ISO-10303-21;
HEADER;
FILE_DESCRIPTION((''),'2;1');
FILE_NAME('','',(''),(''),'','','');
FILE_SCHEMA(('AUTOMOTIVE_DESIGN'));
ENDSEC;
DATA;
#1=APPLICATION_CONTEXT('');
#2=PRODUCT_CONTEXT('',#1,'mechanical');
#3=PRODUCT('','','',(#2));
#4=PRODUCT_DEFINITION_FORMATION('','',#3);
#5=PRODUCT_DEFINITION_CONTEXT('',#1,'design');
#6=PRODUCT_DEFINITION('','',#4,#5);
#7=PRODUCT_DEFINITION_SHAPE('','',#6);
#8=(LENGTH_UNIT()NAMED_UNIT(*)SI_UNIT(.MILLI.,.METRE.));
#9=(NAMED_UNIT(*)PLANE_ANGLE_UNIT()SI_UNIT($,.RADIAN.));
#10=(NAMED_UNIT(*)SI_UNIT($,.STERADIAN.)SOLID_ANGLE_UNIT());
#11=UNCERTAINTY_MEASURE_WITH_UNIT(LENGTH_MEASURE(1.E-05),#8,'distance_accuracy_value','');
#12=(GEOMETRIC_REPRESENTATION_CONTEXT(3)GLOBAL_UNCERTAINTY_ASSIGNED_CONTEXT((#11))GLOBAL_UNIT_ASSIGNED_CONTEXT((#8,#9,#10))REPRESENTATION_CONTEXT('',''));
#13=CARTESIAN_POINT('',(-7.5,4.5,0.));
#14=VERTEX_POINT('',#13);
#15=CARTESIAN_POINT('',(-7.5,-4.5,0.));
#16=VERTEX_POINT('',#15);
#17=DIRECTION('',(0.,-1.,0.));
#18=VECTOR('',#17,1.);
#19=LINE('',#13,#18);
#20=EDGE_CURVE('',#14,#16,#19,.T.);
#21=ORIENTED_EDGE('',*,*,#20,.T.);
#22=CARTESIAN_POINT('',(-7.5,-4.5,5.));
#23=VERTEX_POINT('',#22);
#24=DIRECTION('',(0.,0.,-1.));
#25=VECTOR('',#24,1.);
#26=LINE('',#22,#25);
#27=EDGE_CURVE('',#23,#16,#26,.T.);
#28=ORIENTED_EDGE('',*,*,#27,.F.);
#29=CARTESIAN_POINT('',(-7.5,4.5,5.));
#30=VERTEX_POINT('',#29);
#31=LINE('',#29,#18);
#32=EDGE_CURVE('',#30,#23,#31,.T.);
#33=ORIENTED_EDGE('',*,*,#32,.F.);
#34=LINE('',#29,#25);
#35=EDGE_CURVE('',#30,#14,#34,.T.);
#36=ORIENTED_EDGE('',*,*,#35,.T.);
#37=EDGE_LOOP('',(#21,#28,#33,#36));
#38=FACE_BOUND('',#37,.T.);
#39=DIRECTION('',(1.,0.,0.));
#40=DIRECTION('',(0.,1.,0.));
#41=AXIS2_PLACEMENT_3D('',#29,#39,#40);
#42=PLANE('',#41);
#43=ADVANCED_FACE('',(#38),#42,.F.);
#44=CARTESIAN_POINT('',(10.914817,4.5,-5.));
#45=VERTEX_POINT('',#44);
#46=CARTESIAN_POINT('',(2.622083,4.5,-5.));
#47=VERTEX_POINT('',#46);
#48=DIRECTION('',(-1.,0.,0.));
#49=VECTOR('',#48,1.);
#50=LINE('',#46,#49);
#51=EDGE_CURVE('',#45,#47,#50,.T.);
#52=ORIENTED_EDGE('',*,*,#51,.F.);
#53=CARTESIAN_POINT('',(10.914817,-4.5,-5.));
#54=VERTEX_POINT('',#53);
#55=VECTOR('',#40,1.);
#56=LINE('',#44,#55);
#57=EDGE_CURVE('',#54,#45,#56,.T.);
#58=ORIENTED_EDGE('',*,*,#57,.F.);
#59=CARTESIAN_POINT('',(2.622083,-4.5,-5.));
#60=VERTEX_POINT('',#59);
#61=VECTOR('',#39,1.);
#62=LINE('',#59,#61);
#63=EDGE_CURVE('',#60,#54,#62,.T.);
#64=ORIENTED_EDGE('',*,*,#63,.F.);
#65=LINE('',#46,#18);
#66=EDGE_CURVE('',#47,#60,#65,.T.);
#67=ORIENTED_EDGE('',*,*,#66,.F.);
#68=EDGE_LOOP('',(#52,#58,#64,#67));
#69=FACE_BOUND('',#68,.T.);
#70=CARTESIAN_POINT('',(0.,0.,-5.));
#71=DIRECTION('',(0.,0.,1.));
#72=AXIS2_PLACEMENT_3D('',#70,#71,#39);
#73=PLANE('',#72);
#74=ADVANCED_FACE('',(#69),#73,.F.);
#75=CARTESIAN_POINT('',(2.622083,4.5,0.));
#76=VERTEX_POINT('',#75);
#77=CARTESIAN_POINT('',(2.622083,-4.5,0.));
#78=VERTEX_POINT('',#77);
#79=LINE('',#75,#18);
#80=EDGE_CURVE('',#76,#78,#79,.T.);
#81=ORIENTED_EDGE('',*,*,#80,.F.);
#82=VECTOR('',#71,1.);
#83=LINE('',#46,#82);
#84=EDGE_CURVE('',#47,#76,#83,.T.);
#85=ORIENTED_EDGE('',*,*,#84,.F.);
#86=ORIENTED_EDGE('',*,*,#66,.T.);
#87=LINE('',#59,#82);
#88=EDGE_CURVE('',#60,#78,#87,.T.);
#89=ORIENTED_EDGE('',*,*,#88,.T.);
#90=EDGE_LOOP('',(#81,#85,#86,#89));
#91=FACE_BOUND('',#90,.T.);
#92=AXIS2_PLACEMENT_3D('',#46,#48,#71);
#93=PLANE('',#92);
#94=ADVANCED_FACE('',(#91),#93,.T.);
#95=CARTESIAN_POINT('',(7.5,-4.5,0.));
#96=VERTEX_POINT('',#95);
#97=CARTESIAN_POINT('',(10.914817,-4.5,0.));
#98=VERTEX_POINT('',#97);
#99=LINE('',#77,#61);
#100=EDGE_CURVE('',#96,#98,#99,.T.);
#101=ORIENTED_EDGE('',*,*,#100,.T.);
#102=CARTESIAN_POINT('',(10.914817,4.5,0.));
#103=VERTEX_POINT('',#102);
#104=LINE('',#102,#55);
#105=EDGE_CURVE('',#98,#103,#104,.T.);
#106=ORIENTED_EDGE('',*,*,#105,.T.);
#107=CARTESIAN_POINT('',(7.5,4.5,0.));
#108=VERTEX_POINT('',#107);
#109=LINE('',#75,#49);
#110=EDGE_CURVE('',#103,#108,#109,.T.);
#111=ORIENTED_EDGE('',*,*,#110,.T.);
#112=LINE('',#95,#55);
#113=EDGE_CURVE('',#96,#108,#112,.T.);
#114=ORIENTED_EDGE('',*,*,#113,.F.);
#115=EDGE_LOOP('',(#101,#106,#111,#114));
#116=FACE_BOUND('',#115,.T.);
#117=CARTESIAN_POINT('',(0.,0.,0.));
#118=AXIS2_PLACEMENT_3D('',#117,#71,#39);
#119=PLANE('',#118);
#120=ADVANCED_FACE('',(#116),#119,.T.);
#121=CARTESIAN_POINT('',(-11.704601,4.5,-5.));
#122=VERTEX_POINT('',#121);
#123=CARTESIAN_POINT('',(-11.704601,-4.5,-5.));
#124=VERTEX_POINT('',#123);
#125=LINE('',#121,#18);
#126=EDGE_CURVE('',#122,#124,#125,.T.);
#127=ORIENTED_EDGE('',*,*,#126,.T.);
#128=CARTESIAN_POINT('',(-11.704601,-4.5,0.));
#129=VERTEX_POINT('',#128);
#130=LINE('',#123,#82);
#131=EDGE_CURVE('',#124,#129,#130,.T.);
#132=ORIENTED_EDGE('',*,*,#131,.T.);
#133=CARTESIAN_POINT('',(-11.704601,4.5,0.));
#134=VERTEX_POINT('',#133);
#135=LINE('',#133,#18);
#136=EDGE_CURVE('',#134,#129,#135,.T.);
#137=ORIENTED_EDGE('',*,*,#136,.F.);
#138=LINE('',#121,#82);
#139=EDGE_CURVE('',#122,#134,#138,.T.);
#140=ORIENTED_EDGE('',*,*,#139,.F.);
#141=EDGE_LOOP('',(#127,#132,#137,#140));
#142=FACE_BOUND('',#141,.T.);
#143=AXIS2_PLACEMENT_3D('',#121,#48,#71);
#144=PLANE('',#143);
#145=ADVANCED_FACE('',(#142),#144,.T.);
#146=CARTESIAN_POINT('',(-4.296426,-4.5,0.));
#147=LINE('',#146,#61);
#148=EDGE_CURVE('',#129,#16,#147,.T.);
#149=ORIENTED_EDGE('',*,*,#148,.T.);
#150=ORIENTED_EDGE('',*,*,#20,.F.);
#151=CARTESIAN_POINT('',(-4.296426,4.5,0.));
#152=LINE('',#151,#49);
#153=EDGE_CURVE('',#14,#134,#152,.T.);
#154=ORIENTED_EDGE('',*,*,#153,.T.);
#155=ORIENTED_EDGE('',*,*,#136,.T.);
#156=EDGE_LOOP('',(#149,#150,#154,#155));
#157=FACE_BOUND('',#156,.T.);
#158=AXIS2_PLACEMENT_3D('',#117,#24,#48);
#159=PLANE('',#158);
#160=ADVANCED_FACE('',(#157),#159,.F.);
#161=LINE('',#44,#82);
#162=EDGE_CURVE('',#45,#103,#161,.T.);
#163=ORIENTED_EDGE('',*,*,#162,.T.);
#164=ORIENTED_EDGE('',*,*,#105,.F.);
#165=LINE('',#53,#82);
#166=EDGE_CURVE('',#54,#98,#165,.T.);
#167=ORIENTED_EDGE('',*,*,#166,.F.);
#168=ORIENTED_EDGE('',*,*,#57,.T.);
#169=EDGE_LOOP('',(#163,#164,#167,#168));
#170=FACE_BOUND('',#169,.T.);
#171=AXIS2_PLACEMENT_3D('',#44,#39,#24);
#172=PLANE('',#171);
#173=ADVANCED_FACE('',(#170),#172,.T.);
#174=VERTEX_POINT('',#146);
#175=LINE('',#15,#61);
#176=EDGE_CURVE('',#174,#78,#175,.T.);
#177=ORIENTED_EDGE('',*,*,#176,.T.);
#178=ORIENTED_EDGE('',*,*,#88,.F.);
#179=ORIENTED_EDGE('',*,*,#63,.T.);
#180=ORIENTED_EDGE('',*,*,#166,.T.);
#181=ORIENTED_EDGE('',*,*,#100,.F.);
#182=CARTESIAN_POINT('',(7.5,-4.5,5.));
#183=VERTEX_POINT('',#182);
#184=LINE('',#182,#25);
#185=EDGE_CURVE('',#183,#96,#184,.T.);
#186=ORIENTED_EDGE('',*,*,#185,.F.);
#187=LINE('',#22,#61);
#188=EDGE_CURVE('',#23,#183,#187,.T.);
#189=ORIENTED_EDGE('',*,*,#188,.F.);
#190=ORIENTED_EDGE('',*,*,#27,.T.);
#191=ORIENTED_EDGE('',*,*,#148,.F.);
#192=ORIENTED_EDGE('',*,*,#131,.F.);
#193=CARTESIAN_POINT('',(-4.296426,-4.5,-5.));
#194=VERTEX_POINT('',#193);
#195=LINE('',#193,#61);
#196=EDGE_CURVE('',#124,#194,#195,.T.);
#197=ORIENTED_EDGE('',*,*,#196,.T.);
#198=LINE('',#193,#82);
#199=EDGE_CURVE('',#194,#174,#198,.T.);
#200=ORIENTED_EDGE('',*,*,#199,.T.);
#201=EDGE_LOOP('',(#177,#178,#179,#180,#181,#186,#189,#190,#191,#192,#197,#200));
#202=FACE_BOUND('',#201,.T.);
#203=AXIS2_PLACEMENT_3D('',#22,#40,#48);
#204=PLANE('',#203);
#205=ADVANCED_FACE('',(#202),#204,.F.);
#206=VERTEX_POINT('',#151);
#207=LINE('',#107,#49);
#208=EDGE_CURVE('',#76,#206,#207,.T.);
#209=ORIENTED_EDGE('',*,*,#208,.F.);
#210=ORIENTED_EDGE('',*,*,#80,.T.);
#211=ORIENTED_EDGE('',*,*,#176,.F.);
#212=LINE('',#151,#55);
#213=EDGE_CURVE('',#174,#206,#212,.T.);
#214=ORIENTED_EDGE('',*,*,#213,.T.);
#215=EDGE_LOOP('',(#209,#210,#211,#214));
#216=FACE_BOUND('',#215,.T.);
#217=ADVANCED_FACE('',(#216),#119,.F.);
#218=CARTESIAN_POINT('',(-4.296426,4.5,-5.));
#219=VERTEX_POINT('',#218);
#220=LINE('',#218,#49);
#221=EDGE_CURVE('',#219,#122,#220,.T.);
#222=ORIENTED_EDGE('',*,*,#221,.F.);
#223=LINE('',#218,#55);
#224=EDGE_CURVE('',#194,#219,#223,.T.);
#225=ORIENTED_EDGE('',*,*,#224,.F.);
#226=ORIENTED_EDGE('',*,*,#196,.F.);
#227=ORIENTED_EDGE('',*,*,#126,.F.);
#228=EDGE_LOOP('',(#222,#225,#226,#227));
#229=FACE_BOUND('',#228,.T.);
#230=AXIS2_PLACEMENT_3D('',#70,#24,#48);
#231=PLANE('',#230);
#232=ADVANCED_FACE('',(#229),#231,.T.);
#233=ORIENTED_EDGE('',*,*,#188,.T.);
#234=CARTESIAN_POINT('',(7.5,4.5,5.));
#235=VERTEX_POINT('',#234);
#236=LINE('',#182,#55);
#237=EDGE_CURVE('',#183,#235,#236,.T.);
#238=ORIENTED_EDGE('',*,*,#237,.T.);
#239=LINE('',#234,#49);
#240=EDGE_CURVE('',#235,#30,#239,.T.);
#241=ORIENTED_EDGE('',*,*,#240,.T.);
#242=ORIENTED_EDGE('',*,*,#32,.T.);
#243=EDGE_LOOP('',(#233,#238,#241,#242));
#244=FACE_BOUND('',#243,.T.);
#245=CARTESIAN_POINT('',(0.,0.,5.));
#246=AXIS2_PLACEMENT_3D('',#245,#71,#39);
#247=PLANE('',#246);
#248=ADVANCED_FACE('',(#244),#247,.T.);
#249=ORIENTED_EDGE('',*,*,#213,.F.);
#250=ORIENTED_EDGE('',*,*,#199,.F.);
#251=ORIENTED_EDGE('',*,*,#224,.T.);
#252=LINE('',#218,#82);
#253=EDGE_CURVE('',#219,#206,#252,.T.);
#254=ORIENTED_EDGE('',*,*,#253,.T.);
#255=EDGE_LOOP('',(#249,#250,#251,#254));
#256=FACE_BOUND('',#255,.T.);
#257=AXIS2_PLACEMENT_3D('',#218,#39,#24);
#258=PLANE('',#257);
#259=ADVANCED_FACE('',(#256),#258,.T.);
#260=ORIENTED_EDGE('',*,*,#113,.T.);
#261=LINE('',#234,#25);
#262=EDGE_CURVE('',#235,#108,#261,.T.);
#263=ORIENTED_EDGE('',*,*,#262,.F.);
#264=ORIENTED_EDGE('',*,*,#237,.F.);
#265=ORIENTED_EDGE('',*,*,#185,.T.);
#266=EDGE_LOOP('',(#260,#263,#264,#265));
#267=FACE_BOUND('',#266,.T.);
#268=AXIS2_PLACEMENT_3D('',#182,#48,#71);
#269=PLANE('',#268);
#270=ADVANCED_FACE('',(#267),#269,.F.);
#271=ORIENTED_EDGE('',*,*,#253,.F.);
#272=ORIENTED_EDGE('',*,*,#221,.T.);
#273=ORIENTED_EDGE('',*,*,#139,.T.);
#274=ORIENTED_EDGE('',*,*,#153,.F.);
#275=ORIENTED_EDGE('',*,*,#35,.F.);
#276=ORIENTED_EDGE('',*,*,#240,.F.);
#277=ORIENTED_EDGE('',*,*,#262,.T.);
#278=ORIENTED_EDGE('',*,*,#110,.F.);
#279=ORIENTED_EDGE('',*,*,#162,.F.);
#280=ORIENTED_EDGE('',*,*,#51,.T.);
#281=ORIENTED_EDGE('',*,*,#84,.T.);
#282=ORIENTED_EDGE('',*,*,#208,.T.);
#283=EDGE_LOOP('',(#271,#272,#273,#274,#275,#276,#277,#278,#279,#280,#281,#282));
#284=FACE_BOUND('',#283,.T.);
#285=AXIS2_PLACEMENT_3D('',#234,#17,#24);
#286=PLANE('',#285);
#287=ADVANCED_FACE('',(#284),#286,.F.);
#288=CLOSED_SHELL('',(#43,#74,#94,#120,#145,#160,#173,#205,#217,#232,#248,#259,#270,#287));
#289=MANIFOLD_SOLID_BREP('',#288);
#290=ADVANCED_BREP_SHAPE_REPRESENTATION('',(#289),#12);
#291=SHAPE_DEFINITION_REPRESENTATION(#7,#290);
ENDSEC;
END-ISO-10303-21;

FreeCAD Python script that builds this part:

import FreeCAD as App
import Part
import Sketcher

V = App.Vector

doc = App.newDocument("Part")
params = doc.addObject("Spreadsheet::Sheet", "Params")
for row, (alias, value) in enumerate([
    ("sketch1_width", "15 mm"),
    ("sketch1_height", "9 mm"),
    ("pad1_length", "5 mm"),
    ("sketch2_height", "9 mm"),
    ("pad2_length", "5 mm"),
], start=1):
    params.set(f"A{row}", alias)
    params.set(f"B{row}", "=" + value)
    params.setAlias(f"B{row}", alias)

body = doc.addObject("PartDesign::Body", "Body")

# Sketch on XY plane
sketch1 = body.newObject("Sketcher::SketchObject", "Sketch")
sketch1.AttachmentSupport = (doc.getObject("XY_Plane"), [""])
sketch1.MapMode = "FlatFace"
sketch1.addGeometry([
    Part.LineSegment(V(-8, 4, 0), V(-8, -4, 0)),
    Part.LineSegment(V(-8, -4, 0), V(8, -4, 0)),
    Part.LineSegment(V(8, -4, 0), V(8, 4, 0)),
    Part.LineSegment(V(8, 4, 0), V(-8, 4, 0)),
], False)
sketch1.addConstraint([
    Sketcher.Constraint("Coincident", 0, 2, 1, 1),
    Sketcher.Constraint("Coincident", 1, 2, 2, 1),
    Sketcher.Constraint("Coincident", 2, 2, 3, 1),
    Sketcher.Constraint("Coincident", 3, 2, 0, 1),
    Sketcher.Constraint("Vertical", 0),
    Sketcher.Constraint("Horizontal", 1),
    Sketcher.Constraint("Vertical", 2),
    Sketcher.Constraint("Horizontal", 3),
    Sketcher.Constraint("Symmetric", 0, 2, 2, 2, -1, 1),
    Sketcher.Constraint("DistanceX", 1, 1, 1, 2, 15.0),
    Sketcher.Constraint("DistanceY", 0, 2, 0, 1, 9.0),
])
sketch1.setExpression("Constraints[9]", "Params.sketch1_width")
sketch1.setExpression("Constraints[10]", "Params.sketch1_height")
pad1 = body.newObject("PartDesign::Pad", "Pad")
pad1.Profile = sketch1
pad1.setExpression("Length", "Params.pad1_length")

# Sketch on XY plane
sketch2 = body.newObject("Sketcher::SketchObject", "Sketch001")
sketch2.AttachmentSupport = (doc.getObject("XY_Plane"), [""])
sketch2.MapMode = "FlatFace"
sketch2.addGeometry([
    Part.LineSegment(V(-12, 4, 0), V(-12, -4, 0)),  # 0
    Part.LineSegment(V(-12, -4, 0), V(-4, -4, 0)),  # 1
    Part.LineSegment(V(-4, -4, 0), V(-4, 4, 0)),  # 2
    Part.LineSegment(V(-4, 4, 0), V(-12, 4, 0)),  # 3
    Part.LineSegment(V(3, 4, 0), V(3, -4, 0)),  # 4
    Part.LineSegment(V(3, -4, 0), V(11, -4, 0)),  # 5
    Part.LineSegment(V(11, -4, 0), V(11, 4, 0)),  # 6
    Part.LineSegment(V(11, 4, 0), V(3, 4, 0)),  # 7
], False)
sketch2.addConstraint([
    Sketcher.Constraint("Coincident", 0, 2, 1, 1),
    Sketcher.Constraint("Coincident", 1, 2, 2, 1),
    Sketcher.Constraint("Coincident", 2, 2, 3, 1),
    Sketcher.Constraint("Coincident", 3, 2, 0, 1),
    Sketcher.Constraint("Coincident", 4, 2, 5, 1),
    Sketcher.Constraint("Coincident", 5, 2, 6, 1),
    Sketcher.Constraint("Coincident", 6, 2, 7, 1),
    Sketcher.Constraint("Coincident", 7, 2, 4, 1),
    Sketcher.Constraint("Vertical", 0),
    Sketcher.Constraint("Horizontal", 1),
    Sketcher.Constraint("Vertical", 2),
    Sketcher.Constraint("Horizontal", 3),
    Sketcher.Constraint("Vertical", 4),
    Sketcher.Constraint("Horizontal", 5),
    Sketcher.Constraint("Vertical", 6),
    Sketcher.Constraint("Horizontal", 7),
    Sketcher.Constraint("Horizontal", 1, 2, 4, 2),
    Sketcher.Constraint("Horizontal", 3, 2, 6, 2),
    Sketcher.Constraint("DistanceY", 0, 2, 0, 1, 9.0),
    Sketcher.Constraint("DistanceY", 0, 2, -1, 1, 4.5),
    Sketcher.Constraint("DistanceX", 0, 2, -1, 1, 11.704601),
    Sketcher.Constraint("DistanceX", 1, 1, 1, 2, 7.408175),
    Sketcher.Constraint("DistanceX", 5, 1, 5, 2, 8.292733),
    Sketcher.Constraint("DistanceX", 1, 2, 4, 2, 6.918509),
])
sketch2.setExpression("Constraints[18]", "Params.sketch2_height")
pad2 = body.newObject("PartDesign::Pad", "Pad001")
pad2.Profile = sketch2
pad2.setExpression("Length", "Params.pad2_length")
pad2.Reversed = True

doc.recompute()
